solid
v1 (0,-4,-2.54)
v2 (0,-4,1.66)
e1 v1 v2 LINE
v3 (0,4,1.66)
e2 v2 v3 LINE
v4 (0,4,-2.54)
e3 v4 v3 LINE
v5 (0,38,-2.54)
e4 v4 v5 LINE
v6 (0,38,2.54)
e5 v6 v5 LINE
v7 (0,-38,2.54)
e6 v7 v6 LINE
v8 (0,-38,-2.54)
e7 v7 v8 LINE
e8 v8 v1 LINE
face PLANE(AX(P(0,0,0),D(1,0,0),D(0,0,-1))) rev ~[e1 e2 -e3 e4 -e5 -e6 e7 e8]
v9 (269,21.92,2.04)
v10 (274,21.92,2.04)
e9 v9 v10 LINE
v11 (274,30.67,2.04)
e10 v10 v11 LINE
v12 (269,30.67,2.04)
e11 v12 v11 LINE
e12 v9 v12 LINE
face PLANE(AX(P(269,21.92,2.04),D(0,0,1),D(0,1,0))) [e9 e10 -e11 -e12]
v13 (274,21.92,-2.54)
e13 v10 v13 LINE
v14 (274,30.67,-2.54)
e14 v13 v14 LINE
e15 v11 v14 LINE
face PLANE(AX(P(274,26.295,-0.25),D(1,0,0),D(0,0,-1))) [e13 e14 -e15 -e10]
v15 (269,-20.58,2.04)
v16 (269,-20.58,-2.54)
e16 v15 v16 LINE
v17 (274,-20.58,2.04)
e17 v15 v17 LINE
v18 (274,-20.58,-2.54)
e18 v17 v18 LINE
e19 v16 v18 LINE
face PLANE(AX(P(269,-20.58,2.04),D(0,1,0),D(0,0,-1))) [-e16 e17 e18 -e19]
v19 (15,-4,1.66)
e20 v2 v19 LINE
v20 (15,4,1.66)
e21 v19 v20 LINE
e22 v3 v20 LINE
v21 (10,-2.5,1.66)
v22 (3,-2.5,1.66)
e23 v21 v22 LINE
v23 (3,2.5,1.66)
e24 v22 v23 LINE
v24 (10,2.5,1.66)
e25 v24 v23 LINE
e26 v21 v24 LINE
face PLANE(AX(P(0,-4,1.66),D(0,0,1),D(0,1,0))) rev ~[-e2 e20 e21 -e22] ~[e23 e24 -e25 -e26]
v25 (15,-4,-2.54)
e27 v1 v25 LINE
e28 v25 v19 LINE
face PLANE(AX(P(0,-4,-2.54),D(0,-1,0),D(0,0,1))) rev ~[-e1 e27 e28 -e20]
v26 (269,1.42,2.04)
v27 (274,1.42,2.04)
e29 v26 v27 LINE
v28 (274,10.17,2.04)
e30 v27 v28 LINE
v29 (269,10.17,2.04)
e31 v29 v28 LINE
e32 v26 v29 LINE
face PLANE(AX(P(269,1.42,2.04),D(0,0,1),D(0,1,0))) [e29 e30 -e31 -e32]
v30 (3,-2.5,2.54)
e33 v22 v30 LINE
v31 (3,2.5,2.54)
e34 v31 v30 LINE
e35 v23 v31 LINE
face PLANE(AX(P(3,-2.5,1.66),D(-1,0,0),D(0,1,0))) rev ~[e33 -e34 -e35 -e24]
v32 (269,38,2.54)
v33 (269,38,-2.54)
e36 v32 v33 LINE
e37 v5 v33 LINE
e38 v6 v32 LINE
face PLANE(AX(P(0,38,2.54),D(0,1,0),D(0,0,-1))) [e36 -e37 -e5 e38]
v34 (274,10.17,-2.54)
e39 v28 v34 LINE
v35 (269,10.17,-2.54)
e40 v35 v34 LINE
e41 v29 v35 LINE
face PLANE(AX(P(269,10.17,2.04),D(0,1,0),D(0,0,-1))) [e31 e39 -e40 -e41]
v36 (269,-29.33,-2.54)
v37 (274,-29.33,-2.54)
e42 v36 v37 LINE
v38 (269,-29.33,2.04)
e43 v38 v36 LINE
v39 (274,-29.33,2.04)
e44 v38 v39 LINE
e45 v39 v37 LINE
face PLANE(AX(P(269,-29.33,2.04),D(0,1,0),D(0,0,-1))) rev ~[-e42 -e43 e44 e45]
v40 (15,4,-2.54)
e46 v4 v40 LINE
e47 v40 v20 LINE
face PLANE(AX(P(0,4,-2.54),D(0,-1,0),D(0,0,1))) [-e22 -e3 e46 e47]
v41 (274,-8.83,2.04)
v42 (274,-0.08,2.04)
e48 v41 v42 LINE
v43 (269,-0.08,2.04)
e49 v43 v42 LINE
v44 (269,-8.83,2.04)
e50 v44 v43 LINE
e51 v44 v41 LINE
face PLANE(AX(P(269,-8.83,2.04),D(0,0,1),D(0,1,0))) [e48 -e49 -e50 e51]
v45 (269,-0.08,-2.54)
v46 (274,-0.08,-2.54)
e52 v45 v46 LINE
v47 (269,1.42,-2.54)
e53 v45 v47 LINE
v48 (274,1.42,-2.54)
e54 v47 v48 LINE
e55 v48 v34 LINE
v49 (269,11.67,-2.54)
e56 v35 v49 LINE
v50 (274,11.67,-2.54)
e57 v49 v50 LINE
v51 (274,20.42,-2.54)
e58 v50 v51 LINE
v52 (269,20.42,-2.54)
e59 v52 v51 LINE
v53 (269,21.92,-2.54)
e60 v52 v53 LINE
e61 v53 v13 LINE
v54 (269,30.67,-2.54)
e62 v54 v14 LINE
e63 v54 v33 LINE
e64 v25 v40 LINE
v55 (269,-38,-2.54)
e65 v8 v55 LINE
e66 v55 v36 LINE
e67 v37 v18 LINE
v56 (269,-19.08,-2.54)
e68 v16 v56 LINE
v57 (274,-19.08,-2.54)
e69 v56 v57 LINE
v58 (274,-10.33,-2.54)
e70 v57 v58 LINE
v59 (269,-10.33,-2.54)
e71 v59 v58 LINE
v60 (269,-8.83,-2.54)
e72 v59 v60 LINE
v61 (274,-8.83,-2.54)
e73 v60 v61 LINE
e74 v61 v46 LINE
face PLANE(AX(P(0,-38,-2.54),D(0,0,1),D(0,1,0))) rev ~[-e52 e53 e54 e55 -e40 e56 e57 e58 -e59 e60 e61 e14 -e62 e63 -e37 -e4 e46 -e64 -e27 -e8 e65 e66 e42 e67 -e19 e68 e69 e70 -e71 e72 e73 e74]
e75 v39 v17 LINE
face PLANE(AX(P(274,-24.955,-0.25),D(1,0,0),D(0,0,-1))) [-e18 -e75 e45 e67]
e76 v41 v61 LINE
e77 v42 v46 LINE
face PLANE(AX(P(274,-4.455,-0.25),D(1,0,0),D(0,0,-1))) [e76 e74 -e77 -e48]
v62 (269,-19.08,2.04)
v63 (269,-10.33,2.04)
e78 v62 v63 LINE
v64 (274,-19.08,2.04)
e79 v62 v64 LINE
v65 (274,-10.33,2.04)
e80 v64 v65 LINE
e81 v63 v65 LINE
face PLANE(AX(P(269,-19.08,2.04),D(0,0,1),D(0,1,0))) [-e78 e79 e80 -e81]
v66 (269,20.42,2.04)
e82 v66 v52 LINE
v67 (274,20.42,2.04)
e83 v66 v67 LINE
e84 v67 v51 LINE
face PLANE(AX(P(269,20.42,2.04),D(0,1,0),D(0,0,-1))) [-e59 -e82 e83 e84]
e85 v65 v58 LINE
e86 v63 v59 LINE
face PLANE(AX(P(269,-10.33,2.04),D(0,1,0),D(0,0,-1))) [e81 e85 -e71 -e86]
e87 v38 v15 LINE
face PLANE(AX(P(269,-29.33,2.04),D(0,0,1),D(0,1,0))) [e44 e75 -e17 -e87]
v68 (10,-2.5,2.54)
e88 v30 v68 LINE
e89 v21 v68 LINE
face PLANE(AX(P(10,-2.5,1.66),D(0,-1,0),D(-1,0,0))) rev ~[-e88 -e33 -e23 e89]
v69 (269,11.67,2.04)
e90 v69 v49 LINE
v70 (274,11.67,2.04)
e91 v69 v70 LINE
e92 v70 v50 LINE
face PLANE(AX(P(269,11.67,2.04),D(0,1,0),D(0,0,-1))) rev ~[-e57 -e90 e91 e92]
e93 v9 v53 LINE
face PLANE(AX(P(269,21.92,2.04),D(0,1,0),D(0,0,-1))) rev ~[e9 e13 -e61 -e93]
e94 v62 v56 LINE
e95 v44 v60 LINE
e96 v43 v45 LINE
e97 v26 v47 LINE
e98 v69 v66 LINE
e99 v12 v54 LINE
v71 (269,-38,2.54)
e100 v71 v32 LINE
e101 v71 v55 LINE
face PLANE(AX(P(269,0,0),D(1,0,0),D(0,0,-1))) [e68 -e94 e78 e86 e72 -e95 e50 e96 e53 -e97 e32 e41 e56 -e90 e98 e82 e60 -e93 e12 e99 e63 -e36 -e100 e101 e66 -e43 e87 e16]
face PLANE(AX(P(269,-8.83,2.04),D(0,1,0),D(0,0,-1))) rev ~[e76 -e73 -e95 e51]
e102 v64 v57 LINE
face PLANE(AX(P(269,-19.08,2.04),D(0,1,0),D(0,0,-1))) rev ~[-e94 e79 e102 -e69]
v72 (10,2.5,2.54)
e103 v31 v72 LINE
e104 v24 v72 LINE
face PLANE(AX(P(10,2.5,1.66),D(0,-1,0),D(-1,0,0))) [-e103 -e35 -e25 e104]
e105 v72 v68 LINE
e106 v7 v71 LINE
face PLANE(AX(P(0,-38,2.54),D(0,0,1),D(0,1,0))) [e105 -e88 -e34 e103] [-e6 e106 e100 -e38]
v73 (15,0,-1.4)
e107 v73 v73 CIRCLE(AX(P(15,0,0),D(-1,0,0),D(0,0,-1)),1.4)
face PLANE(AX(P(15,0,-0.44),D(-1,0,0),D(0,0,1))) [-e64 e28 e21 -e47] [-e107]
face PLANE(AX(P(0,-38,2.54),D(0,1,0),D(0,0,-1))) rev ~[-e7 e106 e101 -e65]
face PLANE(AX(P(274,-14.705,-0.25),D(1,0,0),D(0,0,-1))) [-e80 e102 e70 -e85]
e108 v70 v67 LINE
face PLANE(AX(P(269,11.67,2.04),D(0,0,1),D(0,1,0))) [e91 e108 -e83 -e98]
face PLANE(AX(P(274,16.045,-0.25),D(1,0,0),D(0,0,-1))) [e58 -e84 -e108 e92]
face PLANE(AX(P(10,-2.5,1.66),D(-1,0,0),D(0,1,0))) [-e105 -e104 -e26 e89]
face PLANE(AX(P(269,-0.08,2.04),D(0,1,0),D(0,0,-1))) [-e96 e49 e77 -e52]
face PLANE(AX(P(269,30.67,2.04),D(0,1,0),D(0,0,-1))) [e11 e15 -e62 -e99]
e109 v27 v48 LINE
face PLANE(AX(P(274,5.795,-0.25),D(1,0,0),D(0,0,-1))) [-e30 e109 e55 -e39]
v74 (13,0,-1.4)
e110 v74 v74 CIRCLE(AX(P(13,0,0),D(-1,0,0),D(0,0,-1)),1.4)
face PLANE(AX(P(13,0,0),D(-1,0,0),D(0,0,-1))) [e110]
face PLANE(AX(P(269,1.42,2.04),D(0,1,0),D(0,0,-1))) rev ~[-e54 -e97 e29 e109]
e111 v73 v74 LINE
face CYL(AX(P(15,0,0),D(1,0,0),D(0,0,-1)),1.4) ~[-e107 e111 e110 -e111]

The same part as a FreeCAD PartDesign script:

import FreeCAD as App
import Part
import Sketcher
from FreeCAD import Vector

doc = App.newDocument("Part")
body = doc.addObject("PartDesign::Body", "Body")

# Sketch on YZ plane
sketch1 = doc.addObject("Sketcher::SketchObject", "Sketch")
body.addObject(sketch1)
sketch1.AttachmentSupport = (doc.YZ_Plane, [""])
sketch1.MapMode = "FlatFace"
sketch1.addGeometry([
    Part.LineSegment(Vector(38, 2.54, 0), Vector(-38, 2.54, 0)),
    Part.LineSegment(Vector(-38, 2.54, 0), Vector(-38, -2.54, 0)),
    Part.LineSegment(Vector(-38, -2.54, 0), Vector(38, -2.54, 0)),
    Part.LineSegment(Vector(38, -2.54, 0), Vector(38, 2.54, 0)),
], False)
sketch1.addConstraint([
    Sketcher.Constraint("Coincident", 0, 2, 1, 1),
    Sketcher.Constraint("Coincident", 1, 2, 2, 1),
    Sketcher.Constraint("Coincident", 2, 2, 3, 1),
    Sketcher.Constraint("Coincident", 3, 2, 0, 1),
    Sketcher.Constraint("Horizontal", 0),
    Sketcher.Constraint("Vertical", 1),
    Sketcher.Constraint("Horizontal", 2),
    Sketcher.Constraint("Vertical", 3),
    Sketcher.Constraint("Symmetric", 0, 2, 2, 2, -1, 1),
    Sketcher.Constraint("DistanceX", 0, 2, 0, 1, 76.0),
    Sketcher.Constraint("DistanceY", 1, 2, 1, 1, 5.08),
])
pad1 = doc.addObject("PartDesign::Pad", "Pad")
body.addObject(pad1)
pad1.Profile = sketch1
pad1.Length = 269

# Sketch on YZ plane
sketch2 = doc.addObject("Sketcher::SketchObject", "Sketch001")
body.addObject(sketch2)
sketch2.AttachmentSupport = (doc.YZ_Plane, [""])
sketch2.MapMode = "FlatFace"
sketch2.AttachmentOffset = App.Placement(Vector(0, 0, 269), App.Rotation())
sketch2.addGeometry([
    Part.LineSegment(Vector(30.67, 2.04, 0), Vector(21.92, 2.04, 0)),  # 0
    Part.LineSegment(Vector(21.92, 2.04, 0), Vector(21.92, -2.54, 0)),  # 1
    Part.LineSegment(Vector(21.92, -2.54, 0), Vector(30.67, -2.54, 0)),  # 2
    Part.LineSegment(Vector(30.67, -2.54, 0), Vector(30.67, 2.04, 0)),  # 3
    Part.LineSegment(Vector(10.17, 2.04, 0), Vector(1.42, 2.04, 0)),  # 4
    Part.LineSegment(Vector(1.42, 2.04, 0), Vector(1.42, -2.54, 0)),  # 5
    Part.LineSegment(Vector(1.42, -2.54, 0), Vector(10.17, -2.54, 0)),  # 6
    Part.LineSegment(Vector(10.17, -2.54, 0), Vector(10.17, 2.04, 0)),  # 7
    Part.LineSegment(Vector(20.42, 2.04, 0), Vector(11.67, 2.04, 0)),  # 8
    Part.LineSegment(Vector(11.67, 2.04, 0), Vector(11.67, -2.54, 0)),  # 9
    Part.LineSegment(Vector(11.67, -2.54, 0), Vector(20.42, -2.54, 0)),  # 10
    Part.LineSegment(Vector(20.42, -2.54, 0), Vector(20.42, 2.04, 0)),  # 11
    Part.LineSegment(Vector(-0.08, 2.04, 0), Vector(-8.83, 2.04, 0)),  # 12
    Part.LineSegment(Vector(-8.83, 2.04, 0), Vector(-8.83, -2.54, 0)),  # 13
    Part.LineSegment(Vector(-8.83, -2.54, 0), Vector(-0.08, -2.54, 0)),  # 14
    Part.LineSegment(Vector(-0.08, -2.54, 0), Vector(-0.08, 2.04, 0)),  # 15
    Part.LineSegment(Vector(-10.33, 2.04, 0), Vector(-19.08, 2.04, 0)),  # 16
    Part.LineSegment(Vector(-19.08, 2.04, 0), Vector(-19.08, -2.54, 0)),  # 17
    Part.LineSegment(Vector(-19.08, -2.54, 0), Vector(-10.33, -2.54, 0)),  # 18
    Part.LineSegment(Vector(-10.33, -2.54, 0), Vector(-10.33, 2.04, 0)),  # 19
    Part.LineSegment(Vector(-20.58, 2.04, 0), Vector(-29.33, 2.04, 0)),  # 20
    Part.LineSegment(Vector(-29.33, 2.04, 0), Vector(-29.33, -2.54, 0)),  # 21
    Part.LineSegment(Vector(-29.33, -2.54, 0), Vector(-20.58, -2.54, 0)),  # 22
    Part.LineSegment(Vector(-20.58, -2.54, 0), Vector(-20.58, 2.04, 0)),  # 23
], False)
sketch2.addConstraint([
    Sketcher.Constraint("Coincident", 0, 2, 1, 1),
    Sketcher.Constraint("Coincident", 1, 2, 2, 1),
    Sketcher.Constraint("Coincident", 2, 2, 3, 1),
    Sketcher.Constraint("Coincident", 3, 2, 0, 1),
    Sketcher.Constraint("Coincident", 4, 2, 5, 1),
    Sketcher.Constraint("Coincident", 5, 2, 6, 1),
    Sketcher.Constraint("Coincident", 6, 2, 7, 1),
    Sketcher.Constraint("Coincident", 7, 2, 4, 1),
    Sketcher.Constraint("Coincident", 8, 2, 9, 1),
    Sketcher.Constraint("Coincident", 9, 2, 10, 1),
    Sketcher.Constraint("Coincident", 10, 2, 11, 1),
    Sketcher.Constraint("Coincident", 11, 2, 8, 1),
    Sketcher.Constraint("Coincident", 12, 2, 13, 1),
    Sketcher.Constraint("Coincident", 13, 2, 14, 1),
    Sketcher.Constraint("Coincident", 14, 2, 15, 1),
    Sketcher.Constraint("Coincident", 15, 2, 12, 1),
    Sketcher.Constraint("Coincident", 16, 2, 17, 1),
    Sketcher.Constraint("Coincident", 17, 2, 18, 1),
    Sketcher.Constraint("Coincident", 18, 2, 19, 1),
    Sketcher.Constraint("Coincident", 19, 2, 16, 1),
    Sketcher.Constraint("Coincident", 20, 2, 21, 1),
    Sketcher.Constraint("Coincident", 21, 2, 22, 1),
    Sketcher.Constraint("Coincident", 22, 2, 23, 1),
    Sketcher.Constraint("Coincident", 23, 2, 20, 1),
    Sketcher.Constraint("Horizontal", 0),
    Sketcher.Constraint("Vertical", 1),
    Sketcher.Constraint("Horizontal", 2),
    Sketcher.Constraint("Vertical", 3),
    Sketcher.Constraint("Horizontal", 4),
    Sketcher.Constraint("Vertical", 5),
    Sketcher.Constraint("Horizontal", 6),
    Sketcher.Constraint("Vertical", 7),
    Sketcher.Constraint("Horizontal", 8),
    Sketcher.Constraint("Vertical", 9),
    Sketcher.Constraint("Horizontal", 10),
    Sketcher.Constraint("Vertical", 11),
    Sketcher.Constraint("Horizontal", 12),
    Sketcher.Constraint("Vertical", 13),
    Sketcher.Constraint("Horizontal", 14),
    Sketcher.Constraint("Vertical", 15),
    Sketcher.Constraint("Horizontal", 16),
    Sketcher.Constraint("Vertical", 17),
    Sketcher.Constraint("Horizontal", 18),
    Sketcher.Constraint("Vertical", 19),
    Sketcher.Constraint("Horizontal", 20),
    Sketcher.Constraint("Vertical", 21),
    Sketcher.Constraint("Horizontal", 22),
    Sketcher.Constraint("Vertical", 23),
    Sketcher.Constraint("Horizontal", 3, 2, 4, 2),
    Sketcher.Constraint("Horizontal", 2, 2, 5, 2),
    Sketcher.Constraint("Horizontal", 7, 2, 8, 2),
    Sketcher.Constraint("Horizontal", 6, 2, 9, 2),
    Sketcher.Constraint("Horizontal", 11, 2, 12, 2),
    Sketcher.Constraint("Horizontal", 10, 2, 13, 2),
    Sketcher.Constraint("Horizontal", 15, 2, 16, 2),
    Sketcher.Constraint("Horizontal", 14, 2, 17, 2),
    Sketcher.Constraint("Horizontal", 19, 2, 20, 2),
    Sketcher.Constraint("Horizontal", 18, 2, 21, 2),
    Sketcher.Constraint("Equal", 2, 4),
    Sketcher.Constraint("Equal", 6, 8),
    Sketcher.Constraint("Equal", 10, 12),
    Sketcher.Constraint("Equal", 14, 16),
    Sketcher.Constraint("Equal", 18, 20),
    Sketcher.Constraint("DistanceX", 12, 2, 7, 2, 19.0),
    Sketcher.Constraint("DistanceX", 16, 2, 15, 2, 19.0),
    Sketcher.Constraint("DistanceX", 20, 2, 19, 2, 19.0),
    Sketcher.Constraint("DistanceX", 0, 2, 0, 1, 8.75),
    Sketcher.Constraint("DistanceY", 1, 2, 1, 1, 4.58),
    Sketcher.Constraint("DistanceX", 4, 2, 0, 2, 20.5),
    Sketcher.Constraint("DistanceX", 7, 2, 8, 2, 1.5),
    Sketcher.Constraint("DistanceX", -1, 1, 0, 2, 21.92),
    Sketcher.Constraint("DistanceY", -1, 1, 0, 2, 2.04),
])
pad2 = doc.addObject("PartDesign::Pad", "Pad001")
body.addObject(pad2)
pad2.Profile = sketch2
pad2.Length = 5

# Sketch on YZ plane
sketch3 = doc.addObject("Sketcher::SketchObject", "Sketch002")
body.addObject(sketch3)
sketch3.AttachmentSupport = (doc.YZ_Plane, [""])
sketch3.MapMode = "FlatFace"
sketch3.addGeometry([
    Part.LineSegment(Vector(4, -2.54, 0), Vector(-4, -2.54, 0)),
    Part.LineSegment(Vector(-4, -2.54, 0), Vector(-4, 1.66, 0)),
    Part.LineSegment(Vector(-4, 1.66, 0), Vector(4, 1.66, 0)),
    Part.LineSegment(Vector(4, 1.66, 0), Vector(4, -2.54, 0)),
], False)
sketch3.addConstraint([
    Sketcher.Constraint("Coincident", 0, 2, 1, 1),
    Sketcher.Constraint("Coincident", 1, 2, 2, 1),
    Sketcher.Constraint("Coincident", 2, 2, 3, 1),
    Sketcher.Constraint("Coincident", 3, 2, 0, 1),
    Sketcher.Constraint("Horizontal", 0),
    Sketcher.Constraint("Vertical", 1),
    Sketcher.Constraint("Horizontal", 2),
    Sketcher.Constraint("Vertical", 3),
    Sketcher.Constraint("DistanceX", 0, 2, 0, 1, 8.0),
    Sketcher.Constraint("DistanceY", 1, 1, 1, 2, 4.2),
    Sketcher.Constraint("DistanceX", 0, 2, -1, 1, 4.0),
    Sketcher.Constraint("DistanceY", 0, 2, -1, 1, 2.54),
])
pocket1 = doc.addObject("PartDesign::Pocket", "Pocket")
body.addObject(pocket1)
pocket1.Profile = sketch3
pocket1.Length = 15
pocket1.Reversed = True

# Sketch on XY plane
sketch4 = doc.addObject("Sketcher::SketchObject", "Sketch003")
body.addObject(sketch4)
sketch4.AttachmentSupport = (doc.XY_Plane, [""])
sketch4.MapMode = "FlatFace"
sketch4.AttachmentOffset = App.Placement(Vector(0, 0, 1.66), App.Rotation())
sketch4.addGeometry([
    Part.LineSegment(Vector(10, 2.5, 0), Vector(10, -2.5, 0)),
    Part.LineSegment(Vector(10, -2.5, 0), Vector(3, -2.5, 0)),
    Part.LineSegment(Vector(3, -2.5, 0), Vector(3, 2.5, 0)),
    Part.LineSegment(Vector(3, 2.5, 0), Vector(10, 2.5, 0)),
], False)
sketch4.addConstraint([
    Sketcher.Constraint("Coincident", 0, 2, 1, 1),
    Sketcher.Constraint("Coincident", 1, 2, 2, 1),
    Sketcher.Constraint("Coincident", 2, 2, 3, 1),
    Sketcher.Constraint("Coincident", 3, 2, 0, 1),
    Sketcher.Constraint("Vertical", 0),
    Sketcher.Constraint("Horizontal", 1),
    Sketcher.Constraint("Vertical", 2),
    Sketcher.Constraint("Horizontal", 3),
    Sketcher.Constraint("DistanceX", 1, 2, 1, 1, 7.0),
    Sketcher.Constraint("DistanceY", 0, 2, 0, 1, 5.0),
    Sketcher.Constraint("DistanceX", -1, 1, 0, 2, 10.0),
    Sketcher.Constraint("DistanceY", 0, 2, -1, 1, 2.5),
])
pocket2 = doc.addObject("PartDesign::Pocket", "Pocket001")
body.addObject(pocket2)
pocket2.Profile = sketch4
pocket2.Length = 15
pocket2.Reversed = True

# Sketch on YZ plane
sketch5 = doc.addObject("Sketcher::SketchObject", "Sketch004")
body.addObject(sketch5)
sketch5.AttachmentSupport = (doc.YZ_Plane, [""])
sketch5.MapMode = "FlatFace"
sketch5.AttachmentOffset = App.Placement(Vector(0, 0, 15), App.Rotation())
sketch5.addGeometry(Part.Circle(Vector(0, 0, 0), Vector(0, 0, 1), 1.4), False)
sketch5.addConstraint([
    Sketcher.Constraint("Coincident", 0, 3, -1, 1),
    Sketcher.Constraint("Diameter", 0, 2.8),
])
pad3 = doc.addObject("PartDesign::Pad", "Pad002")
body.addObject(pad3)
pad3.Profile = sketch5
pad3.Length = 2
pad3.Reversed = True

doc.recompute()
